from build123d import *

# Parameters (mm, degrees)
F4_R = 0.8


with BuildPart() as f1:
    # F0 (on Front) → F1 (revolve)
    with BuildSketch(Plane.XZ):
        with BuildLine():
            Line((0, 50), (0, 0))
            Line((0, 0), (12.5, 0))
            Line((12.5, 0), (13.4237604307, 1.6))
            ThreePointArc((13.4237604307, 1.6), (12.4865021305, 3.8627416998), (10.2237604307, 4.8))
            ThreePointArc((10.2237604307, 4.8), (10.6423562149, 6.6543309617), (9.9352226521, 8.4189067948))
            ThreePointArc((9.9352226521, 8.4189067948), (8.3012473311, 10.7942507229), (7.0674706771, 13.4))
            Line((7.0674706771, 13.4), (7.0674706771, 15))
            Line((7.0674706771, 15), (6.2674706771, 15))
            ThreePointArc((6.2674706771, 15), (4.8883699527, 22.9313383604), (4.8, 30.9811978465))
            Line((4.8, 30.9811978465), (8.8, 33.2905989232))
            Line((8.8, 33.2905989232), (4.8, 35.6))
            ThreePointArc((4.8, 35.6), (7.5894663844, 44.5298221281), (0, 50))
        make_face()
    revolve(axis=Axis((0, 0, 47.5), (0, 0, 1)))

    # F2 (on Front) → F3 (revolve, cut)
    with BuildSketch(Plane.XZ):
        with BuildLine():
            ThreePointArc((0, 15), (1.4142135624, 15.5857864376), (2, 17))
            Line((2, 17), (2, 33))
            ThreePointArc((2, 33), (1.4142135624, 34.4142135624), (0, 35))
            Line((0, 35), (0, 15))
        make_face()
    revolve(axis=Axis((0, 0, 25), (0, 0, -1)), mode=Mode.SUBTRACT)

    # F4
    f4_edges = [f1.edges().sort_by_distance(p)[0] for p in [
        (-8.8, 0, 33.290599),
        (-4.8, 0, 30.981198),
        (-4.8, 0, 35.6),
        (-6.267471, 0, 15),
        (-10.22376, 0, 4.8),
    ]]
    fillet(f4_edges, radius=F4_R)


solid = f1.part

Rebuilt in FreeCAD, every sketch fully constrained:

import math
import FreeCAD as App
import Part
import Sketcher
Q = App.Units.Quantity


def edges_at(feature, points):
    """Names of the edges that pass closest to the given points."""
    edges = feature.Shape.Edges
    near = lambda p: min(range(len(edges)), key=lambda i: edges[i].distToShape(Part.Vertex(*p))[0])
    return sorted({f"Edge{near(p) + 1}" for p in points})

doc = App.newDocument("Part")
params = doc.addObject("Spreadsheet::Sheet", "Params")
for row, (alias, value) in enumerate([
    ("sketch1_radius", "18 mm"),
    ("sketch1_radius2", "50 mm"),
    ("sketch1_radius3", "8 mm"),
    ("sketch1_radius4", "3.2 mm"),
    ("sketch1_height", "50 mm"),
    ("revolution_angle", "360 deg"),
    ("sketch2_radius", "2 mm"),
    ("sketch2_height", "16 mm"),
    ("groove_angle", "360 deg"),
    ("fillet_radius", "0.8 mm"),
], start=1):
    params.set(f"A{row}", alias)
    params.set(f"B{row}", "=" + value)
    params.setAlias(f"B{row}", alias)

body = doc.addObject("PartDesign::Body", "Body")

# Sketch on XZ plane
sketch1 = body.newObject("Sketcher::SketchObject", "Sketch")
sketch1.AttachmentSupport = (doc.getObject("XZ_Plane"), [""])
sketch1.MapMode = "FlatFace"
sketch1.addGeometry([
    Part.LineSegment(App.Vector(0, 50, 0), App.Vector(0, 0, 0)),  # 0
    Part.LineSegment(App.Vector(0, 0, 0), App.Vector(12.5, 0, 0)),  # 1
    Part.LineSegment(App.Vector(12.5, 0, 0), App.Vector(13.42376, 1.6, 0)),  # 2
    Part.ArcOfCircle(Part.Circle(App.Vector(10.22376, 1.6, 0), App.Vector(0, 0, 1), 3.2), math.radians(0), math.radians(90)),  # 3
    Part.ArcOfCircle(Part.Circle(App.Vector(7.452479, 6.4, 0), App.Vector(0, 0, 1), 3.2), math.radians(-30), math.radians(39.117173)),  # 4
    Part.ArcOfCircle(Part.Circle(App.Vector(23.900655, 19.775258, 0), App.Vector(0, 0, 1), 18), math.radians(-159.256744), math.radians(-140.882827)),  # 5
    Part.LineSegment(App.Vector(7.067471, 13.4, 0), App.Vector(7.067471, 15, 0)),  # 6
    Part.LineSegment(App.Vector(7.067471, 15, 0), App.Vector(6.267471, 15, 0)),  # 7
    Part.ArcOfCircle(Part.Circle(App.Vector(54.678899, 27.503345, 0), App.Vector(0, 0, 1), 50), math.radians(176.011453), math.radians(194.481471)),  # 8
    Part.LineSegment(App.Vector(4.8, 30.981198, 0), App.Vector(8.8, 33.290599, 0)),  # 9
    Part.LineSegment(App.Vector(8.8, 33.290599, 0), App.Vector(4.8, 35.6, 0)),  # 10
    Part.ArcOfCircle(Part.Circle(App.Vector(0, 42, 0), App.Vector(0, 0, 1), 8), math.radians(-53.130102), math.radians(90)),  # 11
], False)
sketch1.addConstraint([
    Sketcher.Constraint("Coincident", 0, 2, 1, 1),
    Sketcher.Constraint("Coincident", 1, 2, 2, 1),
    Sketcher.Constraint("Coincident", 2, 2, 3, 1),
    Sketcher.Constraint("Coincident", 3, 2, 4, 1),
    Sketcher.Constraint("Tangent", 4, 2, 5, 2),
    Sketcher.Constraint("Coincident", 5, 1, 6, 1),
    Sketcher.Constraint("Coincident", 6, 2, 7, 1),
    Sketcher.Constraint("Coincident", 7, 2, 8, 2),
    Sketcher.Constraint("Coincident", 8, 1, 9, 1),
    Sketcher.Constraint("Coincident", 9, 2, 10, 1),
    Sketcher.Constraint("Coincident", 10, 2, 11, 1),
    Sketcher.Constraint("Coincident", 11, 2, 0, 1),
    Sketcher.Constraint("Vertical", 0),
    Sketcher.Constraint("Horizontal", 1),
    Sketcher.Constraint("Vertical", 6),
    Sketcher.Constraint("Horizontal", 7),
    Sketcher.Constraint("Coincident", 0, 2, -1, 1),
    Sketcher.Constraint("Equal", 3, 4),
    Sketcher.Constraint("PointOnObject", 11, 3, -2),
    Sketcher.Constraint("Perpendicular", 2, 10),
    Sketcher.Constraint("Horizontal", 3, 3, 2, 2),
    Sketcher.Constraint("Vertical", 8, 1, 10, 2),
    Sketcher.Constraint("Equal", 9, 10),
    Sketcher.Constraint("Radius", 5, 18.0),
    Sketcher.Constraint("Radius", 8, 50.0),
    Sketcher.Constraint("Radius", 11, 8.0),
    Sketcher.Constraint("Radius", 3, 3.2),
    Sketcher.Constraint("DistanceY", 0, 2, 0, 1, 50.0),
    Sketcher.Constraint("Angle", 2, Q("60 deg")),
    Sketcher.Constraint("DistanceX", 1, 1, 1, 2, 12.5),
    Sketcher.Constraint("DistanceX", 7, 2, 7, 1, 0.8),
    Sketcher.Constraint("DistanceY", 6, 1, 6, 2, 1.6),
    Sketcher.Constraint("DistanceY", -1, 1, 6, 2, 15.0),
    Sketcher.Constraint("DistanceY", 4, 3, 5, 1, 7.0),
    Sketcher.Constraint("DistanceX", 8, 1, 9, 2, 4.0),
    Sketcher.Constraint("DistanceY", -1, 1, 3, 3, 1.6),
    Sketcher.Constraint("DistanceX", -1, 1, 8, 1, 4.8),
    Sketcher.Constraint("DistanceX", 3, 2, 2, 2, 3.2),
    Sketcher.Constraint("DistanceX", -1, 1, 8, 3, 54.678899),
])
sketch1.setExpression("Constraints[23]", "Params.sketch1_radius")
sketch1.setExpression("Constraints[24]", "Params.sketch1_radius2")
sketch1.setExpression("Constraints[25]", "Params.sketch1_radius3")
sketch1.setExpression("Constraints[26]", "Params.sketch1_radius4")
sketch1.setExpression("Constraints[27]", "Params.sketch1_height")
revolution = body.newObject("PartDesign::Revolution", "Revolution")
revolution.Profile = sketch1
revolution.ReferenceAxis = (sketch1, ["V_Axis"])
revolution.setExpression("Angle", "Params.revolution_angle")

# Sketch on XZ plane
sketch2 = body.newObject("Sketcher::SketchObject", "Sketch001")
sketch2.AttachmentSupport = (doc.getObject("XZ_Plane"), [""])
sketch2.MapMode = "FlatFace"
sketch2.addGeometry([
    Part.ArcOfCircle(Part.Circle(App.Vector(0, 17, 0), App.Vector(0, 0, 1), 2), math.radians(-90), math.radians(0)),
    Part.LineSegment(App.Vector(2, 17, 0), App.Vector(2, 33, 0)),
    Part.ArcOfCircle(Part.Circle(App.Vector(0, 33, 0), App.Vector(0, 0, 1), 2), math.radians(0), math.radians(90)),
    Part.LineSegment(App.Vector(0, 35, 0), App.Vector(0, 15, 0)),
], False)
sketch2.addConstraint([
    Sketcher.Constraint("Tangent", 0, 2, 1, 1),
    Sketcher.Constraint("Tangent", 1, 2, 2, 1),
    Sketcher.Constraint("Coincident", 2, 2, 3, 1),
    Sketcher.Constraint("Coincident", 3, 2, 0, 1),
    Sketcher.Constraint("Vertical", 1),
    Sketcher.Constraint("Vertical", 3),
    Sketcher.Constraint("Equal", 0, 2),
    Sketcher.Constraint("PointOnObject", 0, 3, -2),
    Sketcher.Constraint("PointOnObject", 2, 2, -2),
    Sketcher.Constraint("Radius", 0, 2.0),
    Sketcher.Constraint("DistanceY", 1, 1, 1, 2, 16.0),
    Sketcher.Constraint("DistanceY", -1, 1, 0, 3, 17.0),
])
sketch2.setExpression("Constraints[9]", "Params.sketch2_radius")
sketch2.setExpression("Constraints[10]", "Params.sketch2_height")
groove = body.newObject("PartDesign::Groove", "Groove")
groove.Profile = sketch2
groove.ReferenceAxis = (sketch2, ["V_Axis"])
groove.setExpression("Angle", "Params.groove_angle")
doc.recompute()

fillet = body.newObject("PartDesign::Fillet", "Fillet")
fillet.Base = (groove, edges_at(groove, [
    (-8.8, 0, 33.291),
    (-4.8, 0, 30.981),
    (-4.8, 0, 35.6),
    (-6.267, 0, 15),
    (-10.224, 0, 4.8),
]))
fillet.setExpression("Radius", "Params.fillet_radius")

doc.recompute()
